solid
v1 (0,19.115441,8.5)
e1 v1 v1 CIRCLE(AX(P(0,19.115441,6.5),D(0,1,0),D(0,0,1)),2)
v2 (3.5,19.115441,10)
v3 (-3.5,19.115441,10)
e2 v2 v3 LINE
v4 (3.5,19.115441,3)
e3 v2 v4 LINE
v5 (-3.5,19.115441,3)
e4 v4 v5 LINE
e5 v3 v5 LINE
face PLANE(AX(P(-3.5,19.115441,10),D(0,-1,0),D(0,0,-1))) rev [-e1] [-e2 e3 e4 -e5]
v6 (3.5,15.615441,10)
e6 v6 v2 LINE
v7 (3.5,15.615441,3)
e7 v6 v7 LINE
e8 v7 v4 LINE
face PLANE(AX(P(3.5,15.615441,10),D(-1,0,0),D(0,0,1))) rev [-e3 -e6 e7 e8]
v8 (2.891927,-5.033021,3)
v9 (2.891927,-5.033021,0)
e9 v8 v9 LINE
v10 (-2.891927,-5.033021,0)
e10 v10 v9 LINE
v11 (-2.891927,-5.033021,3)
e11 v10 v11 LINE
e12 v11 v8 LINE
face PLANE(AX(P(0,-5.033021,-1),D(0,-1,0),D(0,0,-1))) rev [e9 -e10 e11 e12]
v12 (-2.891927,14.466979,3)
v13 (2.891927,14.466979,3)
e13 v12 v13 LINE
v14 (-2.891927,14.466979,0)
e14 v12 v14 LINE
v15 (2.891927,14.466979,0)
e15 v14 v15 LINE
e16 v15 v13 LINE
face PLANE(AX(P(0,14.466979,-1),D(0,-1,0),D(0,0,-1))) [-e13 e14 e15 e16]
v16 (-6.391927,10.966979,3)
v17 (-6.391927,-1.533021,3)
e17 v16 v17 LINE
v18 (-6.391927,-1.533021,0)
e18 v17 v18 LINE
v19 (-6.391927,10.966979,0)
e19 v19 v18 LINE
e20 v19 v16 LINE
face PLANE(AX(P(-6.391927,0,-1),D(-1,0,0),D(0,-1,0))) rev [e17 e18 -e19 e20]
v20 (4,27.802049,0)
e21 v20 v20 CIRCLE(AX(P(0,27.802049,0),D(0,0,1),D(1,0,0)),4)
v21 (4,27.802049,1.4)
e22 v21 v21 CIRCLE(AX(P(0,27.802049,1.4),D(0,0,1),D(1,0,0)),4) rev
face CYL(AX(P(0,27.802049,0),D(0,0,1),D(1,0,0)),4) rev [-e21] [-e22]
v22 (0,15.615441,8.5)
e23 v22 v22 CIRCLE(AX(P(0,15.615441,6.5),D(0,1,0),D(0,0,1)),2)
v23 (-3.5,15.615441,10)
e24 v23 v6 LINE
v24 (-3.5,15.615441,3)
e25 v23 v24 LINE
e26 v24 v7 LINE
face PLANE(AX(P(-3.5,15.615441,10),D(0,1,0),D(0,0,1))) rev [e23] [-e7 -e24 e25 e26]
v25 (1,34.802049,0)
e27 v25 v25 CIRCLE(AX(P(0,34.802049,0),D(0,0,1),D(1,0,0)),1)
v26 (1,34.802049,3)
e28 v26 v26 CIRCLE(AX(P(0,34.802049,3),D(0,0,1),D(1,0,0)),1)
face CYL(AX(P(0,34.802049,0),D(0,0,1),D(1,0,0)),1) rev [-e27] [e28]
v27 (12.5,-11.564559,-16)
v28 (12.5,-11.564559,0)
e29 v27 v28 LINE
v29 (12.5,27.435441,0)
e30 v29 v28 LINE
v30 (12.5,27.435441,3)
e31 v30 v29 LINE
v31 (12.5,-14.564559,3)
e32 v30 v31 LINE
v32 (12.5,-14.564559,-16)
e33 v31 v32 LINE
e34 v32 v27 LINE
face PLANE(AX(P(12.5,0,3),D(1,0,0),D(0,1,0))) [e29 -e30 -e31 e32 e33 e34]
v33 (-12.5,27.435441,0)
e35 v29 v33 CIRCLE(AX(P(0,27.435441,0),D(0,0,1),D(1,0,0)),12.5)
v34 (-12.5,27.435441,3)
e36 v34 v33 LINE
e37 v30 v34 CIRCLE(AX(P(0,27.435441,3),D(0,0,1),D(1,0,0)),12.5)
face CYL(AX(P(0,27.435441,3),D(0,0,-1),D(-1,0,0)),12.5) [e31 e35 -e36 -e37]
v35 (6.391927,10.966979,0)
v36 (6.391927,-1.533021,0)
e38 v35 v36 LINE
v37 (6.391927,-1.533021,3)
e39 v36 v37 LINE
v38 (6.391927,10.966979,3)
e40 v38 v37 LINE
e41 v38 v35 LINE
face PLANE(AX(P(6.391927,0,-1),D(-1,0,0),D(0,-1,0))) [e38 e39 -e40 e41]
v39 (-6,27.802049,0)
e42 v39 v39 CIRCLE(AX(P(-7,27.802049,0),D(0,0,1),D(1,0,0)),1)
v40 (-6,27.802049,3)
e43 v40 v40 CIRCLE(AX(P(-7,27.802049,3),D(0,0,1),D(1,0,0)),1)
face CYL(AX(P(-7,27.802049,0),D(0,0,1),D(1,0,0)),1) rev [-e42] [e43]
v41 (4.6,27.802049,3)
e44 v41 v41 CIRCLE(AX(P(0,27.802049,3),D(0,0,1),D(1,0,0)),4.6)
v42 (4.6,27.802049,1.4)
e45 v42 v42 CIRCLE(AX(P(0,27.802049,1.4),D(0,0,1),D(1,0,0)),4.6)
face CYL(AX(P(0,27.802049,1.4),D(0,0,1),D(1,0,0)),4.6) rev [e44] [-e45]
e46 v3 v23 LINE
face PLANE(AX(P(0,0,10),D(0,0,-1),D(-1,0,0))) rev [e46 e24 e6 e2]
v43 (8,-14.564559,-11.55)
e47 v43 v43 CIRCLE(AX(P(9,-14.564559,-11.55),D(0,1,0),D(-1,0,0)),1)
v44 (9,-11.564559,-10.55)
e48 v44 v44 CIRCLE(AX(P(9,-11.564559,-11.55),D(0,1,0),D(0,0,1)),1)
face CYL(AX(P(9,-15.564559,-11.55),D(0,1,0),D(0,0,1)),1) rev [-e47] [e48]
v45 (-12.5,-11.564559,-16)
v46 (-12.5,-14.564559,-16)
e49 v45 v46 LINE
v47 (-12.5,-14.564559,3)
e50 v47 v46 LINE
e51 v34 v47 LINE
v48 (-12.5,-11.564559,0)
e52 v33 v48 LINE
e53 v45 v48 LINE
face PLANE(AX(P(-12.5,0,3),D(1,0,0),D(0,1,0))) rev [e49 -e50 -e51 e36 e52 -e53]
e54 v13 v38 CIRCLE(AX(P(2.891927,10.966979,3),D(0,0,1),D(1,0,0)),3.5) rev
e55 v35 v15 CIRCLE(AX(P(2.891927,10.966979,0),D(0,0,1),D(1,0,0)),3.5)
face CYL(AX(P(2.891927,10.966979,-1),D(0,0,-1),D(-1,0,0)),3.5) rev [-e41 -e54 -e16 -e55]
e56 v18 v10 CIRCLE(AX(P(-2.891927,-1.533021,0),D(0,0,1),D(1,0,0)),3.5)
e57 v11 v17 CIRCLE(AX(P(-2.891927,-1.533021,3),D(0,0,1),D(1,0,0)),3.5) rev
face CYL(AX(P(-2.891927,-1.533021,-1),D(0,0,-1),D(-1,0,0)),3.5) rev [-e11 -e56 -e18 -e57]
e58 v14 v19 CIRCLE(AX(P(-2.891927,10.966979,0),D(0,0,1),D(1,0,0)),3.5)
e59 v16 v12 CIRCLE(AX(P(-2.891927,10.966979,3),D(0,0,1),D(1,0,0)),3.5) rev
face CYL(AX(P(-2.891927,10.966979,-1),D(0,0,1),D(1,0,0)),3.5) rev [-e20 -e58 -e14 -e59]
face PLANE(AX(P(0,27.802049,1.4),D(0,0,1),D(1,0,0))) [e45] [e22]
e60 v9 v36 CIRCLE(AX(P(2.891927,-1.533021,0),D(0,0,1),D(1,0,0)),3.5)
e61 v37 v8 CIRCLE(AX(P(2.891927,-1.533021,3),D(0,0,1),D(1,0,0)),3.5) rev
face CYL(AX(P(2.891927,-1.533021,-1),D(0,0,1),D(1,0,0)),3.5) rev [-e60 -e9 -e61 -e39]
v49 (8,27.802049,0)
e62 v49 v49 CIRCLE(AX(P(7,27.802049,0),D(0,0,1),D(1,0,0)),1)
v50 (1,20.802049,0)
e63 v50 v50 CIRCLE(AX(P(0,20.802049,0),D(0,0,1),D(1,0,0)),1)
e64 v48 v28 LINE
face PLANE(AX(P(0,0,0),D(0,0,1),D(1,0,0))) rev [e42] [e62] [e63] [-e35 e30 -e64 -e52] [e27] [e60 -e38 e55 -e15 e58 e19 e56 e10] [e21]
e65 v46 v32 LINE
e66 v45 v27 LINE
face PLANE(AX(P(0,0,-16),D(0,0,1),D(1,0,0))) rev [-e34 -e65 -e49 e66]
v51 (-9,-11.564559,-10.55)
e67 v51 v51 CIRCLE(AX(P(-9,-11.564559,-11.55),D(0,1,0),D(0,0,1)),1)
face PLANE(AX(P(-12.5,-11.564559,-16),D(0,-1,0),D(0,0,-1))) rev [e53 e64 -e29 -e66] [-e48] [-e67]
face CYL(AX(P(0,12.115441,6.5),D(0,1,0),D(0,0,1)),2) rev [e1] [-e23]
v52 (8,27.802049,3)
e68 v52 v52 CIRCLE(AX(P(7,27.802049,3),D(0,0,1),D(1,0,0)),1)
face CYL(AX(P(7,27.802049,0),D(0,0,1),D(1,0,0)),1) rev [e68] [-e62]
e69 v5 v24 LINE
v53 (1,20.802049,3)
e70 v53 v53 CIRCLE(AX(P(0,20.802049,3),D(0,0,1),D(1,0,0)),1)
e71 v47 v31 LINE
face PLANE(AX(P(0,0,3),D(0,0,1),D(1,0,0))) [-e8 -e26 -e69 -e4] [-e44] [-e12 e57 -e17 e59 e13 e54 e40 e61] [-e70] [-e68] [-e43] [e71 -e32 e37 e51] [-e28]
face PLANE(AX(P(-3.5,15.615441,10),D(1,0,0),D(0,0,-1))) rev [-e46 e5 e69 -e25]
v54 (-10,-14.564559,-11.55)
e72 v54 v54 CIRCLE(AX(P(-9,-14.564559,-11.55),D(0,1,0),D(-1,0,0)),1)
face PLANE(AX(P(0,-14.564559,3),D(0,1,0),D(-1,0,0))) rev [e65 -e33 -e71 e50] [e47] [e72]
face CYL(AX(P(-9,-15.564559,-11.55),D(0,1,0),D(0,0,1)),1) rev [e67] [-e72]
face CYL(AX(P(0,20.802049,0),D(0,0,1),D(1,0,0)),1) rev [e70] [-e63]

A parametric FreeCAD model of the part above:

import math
import FreeCAD as App
import Part
import Sketcher
from FreeCAD import Vector
Q = App.Units.Quantity


def edges_at(feature, points):
    """Names of the edges that pass closest to the given points."""
    edges = feature.Shape.Edges
    near = lambda p: min(range(len(edges)), key=lambda i: edges[i].distToShape(Part.Vertex(*p))[0])
    return sorted({f"Edge{near(p) + 1}" for p in points})

doc = App.newDocument("Part")
params = doc.addObject("Spreadsheet::Sheet", "Params")
for row, (alias, value) in enumerate([
    ("sketch1_radius", "12.5 mm"),
    ("sketch1_height", "42 mm"),
    ("pad1_length", "3 mm"),
    ("sketch2_diameter", "8 mm"),
    ("sketch2_diameter2", "2 mm"),
    ("pocket1_length", "3 mm"),
    ("sketch3_diameter", "9.2 mm"),
    ("pocket2_length", "1.6 mm"),
    ("sketch4_width", "25 mm"),
    ("sketch4_height", "3 mm"),
    ("pad2_length", "19 mm"),
    ("sketch5_diameter", "2 mm"),
    ("pocket3_length", "4 mm"),
    ("sketch6_height", "19.5 mm"),
    ("pocket4_length", "4 mm"),
    ("fillet_radius", "3.5 mm"),
    ("sketch7_width", "7 mm"),
    ("sketch7_height", "3.5 mm"),
    ("pad3_length", "7 mm"),
    ("sketch8_diameter", "4 mm"),
    ("pocket5_length", "7 mm"),
], start=1):
    params.set(f"A{row}", alias)
    params.set(f"B{row}", "=" + value)
    params.setAlias(f"B{row}", alias)

body = doc.addObject("PartDesign::Body", "Body")

# Sketch on XY plane
sketch1 = doc.addObject("Sketcher::SketchObject", "Sketch")
body.addObject(sketch1)
sketch1.AttachmentSupport = (doc.XY_Plane, [""])
sketch1.MapMode = "FlatFace"
sketch1.addGeometry(Part.LineSegment(Vector(-12, 27, 0), Vector(-12, -15, 0)), False)
sketch1.addGeometry(Part.LineSegment(Vector(-12, -15, 0), Vector(12, -15, 0)), False)
sketch1.addGeometry(Part.LineSegment(Vector(12, -15, 0), Vector(12, 27, 0)), False)
sketch1.addGeometry(Part.ArcOfCircle(Part.Circle(Vector(0, 27, 0), Vector(0, 0, 1), 12), math.radians(0), math.radians(180)), False)
sketch1.addConstraint(Sketcher.Constraint("Coincident", 0, 2, 1, 1))
sketch1.addConstraint(Sketcher.Constraint("Coincident", 1, 2, 2, 1))
sketch1.addConstraint(Sketcher.Constraint("Tangent", 2, 2, 3, 1))
sketch1.addConstraint(Sketcher.Constraint("Tangent", 3, 2, 0, 1))
sketch1.addConstraint(Sketcher.Constraint("Vertical", 0))
sketch1.addConstraint(Sketcher.Constraint("Horizontal", 1))
sketch1.addConstraint(Sketcher.Constraint("Vertical", 2))
sketch1.addConstraint(Sketcher.Constraint("PointOnObject", 3, 3, -2))
sketch1.addConstraint(Sketcher.Constraint("Radius", 3, Q("12.5 mm")))
sketch1.addConstraint(Sketcher.Constraint("DistanceY", 0, 2, 0, 1, Q("42 mm")))
sketch1.addConstraint(Sketcher.Constraint("DistanceY", -1, 1, 3, 3, Q("27.435441 mm")))
sketch1.setExpression("Constraints[8]", "Params.sketch1_radius")
sketch1.setExpression("Constraints[9]", "Params.sketch1_height")
pad1 = doc.addObject("PartDesign::Pad", "Pad")
body.addObject(pad1)
pad1.Profile = sketch1
pad1.setExpression("Length", "Params.pad1_length")

# Sketch on XY plane
sketch2 = doc.addObject("Sketcher::SketchObject", "Sketch001")
body.addObject(sketch2)
sketch2.AttachmentSupport = (doc.XY_Plane, [""])
sketch2.MapMode = "FlatFace"
sketch2.AttachmentOffset = App.Placement(Vector(0, 0, 3), App.Rotation())
sketch2.addGeometry(Part.Circle(Vector(0, 27.8, 0), Vector(0, 0, 1), 4), False)
sketch2.addGeometry(Part.Circle(Vector(0, 34.8, 0), Vector(0, 0, 1), 1), False)
sketch2.addGeometry(Part.Circle(Vector(7, 27.8, 0), Vector(0, 0, 1), 1), False)
sketch2.addGeometry(Part.Circle(Vector(0, 20.8, 0), Vector(0, 0, 1), 1), False)
sketch2.addGeometry(Part.Circle(Vector(-7, 27.8, 0), Vector(0, 0, 1), 1), False)
sketch2.addConstraint(Sketcher.Constraint("Equal", 1, 2))
sketch2.addConstraint(Sketcher.Constraint("Equal", 2, 3))
sketch2.addConstraint(Sketcher.Constraint("Equal", 3, 4))
sketch2.addConstraint(Sketcher.Constraint("Symmetric", 2, 3, 4, 3, -2))
sketch2.addConstraint(Sketcher.Constraint("PointOnObject", 0, 3, -2))
sketch2.addConstraint(Sketcher.Constraint("PointOnObject", 1, 3, -2))
sketch2.addConstraint(Sketcher.Constraint("PointOnObject", 3, 3, -2))
sketch2.addConstraint(Sketcher.Constraint("Horizontal", 0, 3, 2, 3))
sketch2.addConstraint(Sketcher.Constraint("Diameter", 0, Q("8 mm")))
sketch2.addConstraint(Sketcher.Constraint("Diameter", 1, Q("2 mm")))
sketch2.addConstraint(Sketcher.Constraint("DistanceX", -1, 1, 2, 3, Q("7 mm")))
sketch2.addConstraint(Sketcher.Constraint("DistanceY", 0, 3, 1, 3, Q("7 mm")))
sketch2.addConstraint(Sketcher.Constraint("DistanceY", 3, 3, 0, 3, Q("7 mm")))
sketch2.addConstraint(Sketcher.Constraint("DistanceY", -1, 1, 0, 3, Q("27.802049 mm")))
sketch2.setExpression("Constraints[8]", "Params.sketch2_diameter")
sketch2.setExpression("Constraints[9]", "Params.sketch2_diameter2")
pocket1 = doc.addObject("PartDesign::Pocket", "Pocket")
body.addObject(pocket1)
pocket1.Profile = sketch2
pocket1.setExpression("Length", "Params.pocket1_length")

# Sketch on XY plane
sketch3 = doc.addObject("Sketcher::SketchObject", "Sketch002")
body.addObject(sketch3)
sketch3.AttachmentSupport = (doc.XY_Plane, [""])
sketch3.MapMode = "FlatFace"
sketch3.AttachmentOffset = App.Placement(Vector(0, 0, 3), App.Rotation())
sketch3.addGeometry(Part.Circle(Vector(0, 27.8, 0), Vector(0, 0, 1), 4.6), False)
sketch3.addConstraint(Sketcher.Constraint("PointOnObject", 0, 3, -2))
sketch3.addConstraint(Sketcher.Constraint("Diameter", 0, Q("9.2 mm")))
sketch3.addConstraint(Sketcher.Constraint("DistanceY", -1, 1, 0, 3, Q("27.802049 mm")))
sketch3.setExpression("Constraints[1]", "Params.sketch3_diameter")
pocket2 = doc.addObject("PartDesign::Pocket", "Pocket001")
body.addObject(pocket2)
pocket2.Profile = sketch3
pocket2.setExpression("Length", "Params.pocket2_length")

# Sketch on XY plane
sketch4 = doc.addObject("Sketcher::SketchObject", "Sketch003")
body.addObject(sketch4)
sketch4.AttachmentSupport = (doc.XY_Plane, [""])
sketch4.MapMode = "FlatFace"
sketch4.AttachmentOffset = App.Placement(Vector(0, 0, 3), App.Rotation())
sketch4.addGeometry(Part.LineSegment(Vector(-12.5, -11.6, 0), Vector(-12.5, -14.6, 0)), False)
sketch4.addGeometry(Part.LineSegment(Vector(-12.5, -14.6, 0), Vector(12.5, -14.6, 0)), False)
sketch4.addGeometry(Part.LineSegment(Vector(12.5, -14.6, 0), Vector(12.5, -11.6, 0)), False)
sketch4.addGeometry(Part.LineSegment(Vector(12.5, -11.6, 0), Vector(-12.5, -11.6, 0)), False)
sketch4.addConstraint(Sketcher.Constraint("Coincident", 0, 2, 1, 1))
sketch4.addConstraint(Sketcher.Constraint("Coincident", 1, 2, 2, 1))
sketch4.addConstraint(Sketcher.Constraint("Coincident", 2, 2, 3, 1))
sketch4.addConstraint(Sketcher.Constraint("Coincident", 3, 2, 0, 1))
sketch4.addConstraint(Sketcher.Constraint("Vertical", 0))
sketch4.addConstraint(Sketcher.Constraint("Horizontal", 1))
sketch4.addConstraint(Sketcher.Constraint("Vertical", 2))
sketch4.addConstraint(Sketcher.Constraint("Horizontal", 3))
sketch4.addConstraint(Sketcher.Constraint("DistanceX", 1, 1, 1, 2, Q("25 mm")))
sketch4.addConstraint(Sketcher.Constraint("DistanceY", 0, 2, 0, 1, Q("3 mm")))
sketch4.addConstraint(Sketcher.Constraint("DistanceX", 0, 2, -1, 1, Q("12.5 mm")))
sketch4.addConstraint(Sketcher.Constraint("DistanceY", 0, 2, -1, 1, Q("14.564559 mm")))
sketch4.setExpression("Constraints[8]", "Params.sketch4_width")
sketch4.setExpression("Constraints[9]", "Params.sketch4_height")
pad2 = doc.addObject("PartDesign::Pad", "Pad001")
body.addObject(pad2)
pad2.Profile = sketch4
pad2.setExpression("Length", "Params.pad2_length")
pad2.Reversed = True

# Sketch on XZ plane
sketch5 = doc.addObject("Sketcher::SketchObject", "Sketch004")
body.addObject(sketch5)
sketch5.AttachmentSupport = (doc.XZ_Plane, [""])
sketch5.MapMode = "FlatFace"
sketch5.AttachmentOffset = App.Placement(Vector(0, 0, 11.564559), App.Rotation())
sketch5.addGeometry(Part.Circle(Vector(9, -11.6, 0), Vector(0, 0, 1), 1), False)
sketch5.addGeometry(Part.Circle(Vector(-9, -11.6, 0), Vector(0, 0, 1), 1), False)
sketch5.addConstraint(Sketcher.Constraint("Equal", 0, 1))
sketch5.addConstraint(Sketcher.Constraint("Symmetric", 0, 3, 1, 3, -2))
sketch5.addConstraint(Sketcher.Constraint("Diameter", 0, Q("2 mm")))
sketch5.addConstraint(Sketcher.Constraint("DistanceX", -1, 1, 0, 3, Q("9 mm")))
sketch5.addConstraint(Sketcher.Constraint("DistanceY", 0, 3, -1, 1, Q("11.55 mm")))
sketch5.setExpression("Constraints[2]", "Params.sketch5_diameter")
pocket3 = doc.addObject("PartDesign::Pocket", "Pocket002")
body.addObject(pocket3)
pocket3.Profile = sketch5
pocket3.setExpression("Length", "Params.pocket3_length")
pocket3.Reversed = True

# Sketch on XY plane
sketch6 = doc.addObject("Sketcher::SketchObject", "Sketch005")
body.addObject(sketch6)
sketch6.AttachmentSupport = (doc.XY_Plane, [""])
sketch6.MapMode = "FlatFace"
sketch6.AttachmentOffset = App.Placement(Vector(0, 0, 3), App.Rotation())
sketch6.addGeometry(Part.LineSegment(Vector(-6, 14, 0), Vector(-6, -5, 0)), False)
sketch6.addGeometry(Part.LineSegment(Vector(-6, -5, 0), Vector(6, -5, 0)), False)
sketch6.addGeometry(Part.LineSegment(Vector(6, -5, 0), Vector(6, 14, 0)), False)
sketch6.addGeometry(Part.LineSegment(Vector(6, 14, 0), Vector(-6, 14, 0)), False)
sketch6.addConstraint(Sketcher.Constraint("Coincident", 0, 2, 1, 1))
sketch6.addConstraint(Sketcher.Constraint("Coincident", 1, 2, 2, 1))
sketch6.addConstraint(Sketcher.Constraint("Coincident", 2, 2, 3, 1))
sketch6.addConstraint(Sketcher.Constraint("Coincident", 3, 2, 0, 1))
sketch6.addConstraint(Sketcher.Constraint("Vertical", 0))
sketch6.addConstraint(Sketcher.Constraint("Horizontal", 1))
sketch6.addConstraint(Sketcher.Constraint("Vertical", 2))
sketch6.addConstraint(Sketcher.Constraint("Horizontal", 3))
sketch6.addConstraint(Sketcher.Constraint("DistanceY", 0, 2, 0, 1, Q("19.5 mm")))
sketch6.addConstraint(Sketcher.Constraint("DistanceX", 1, 1, 1, 2, Q("12.783853 mm")))
sketch6.addConstraint(Sketcher.Constraint("DistanceY", 0, 2, -1, 1, Q("5.033021 mm")))
sketch6.addConstraint(Sketcher.Constraint("DistanceX", 0, 2, -1, 1, Q("6.391927 mm")))
sketch6.setExpression("Constraints[8]", "Params.sketch6_height")
pocket4 = doc.addObject("PartDesign::Pocket", "Pocket003")
body.addObject(pocket4)
pocket4.Profile = sketch6
pocket4.setExpression("Length", "Params.pocket4_length")
doc.recompute()

fillet = doc.addObject("PartDesign::Fillet", "Fillet")
body.addObject(fillet)
fillet.Base = (pocket4, edges_at(pocket4, [
    (6.392, 14.467, 1.5),
    (6.392, -5.033, 1.5),
    (-6.392, -5.033, 1.5),
    (-6.392, 14.467, 1.5),
]))
fillet.setExpression("Radius", "Params.fillet_radius")

# Sketch on XY plane
sketch7 = doc.addObject("Sketcher::SketchObject", "Sketch006")
body.addObject(sketch7)
sketch7.AttachmentSupport = (doc.XY_Plane, [""])
sketch7.MapMode = "FlatFace"
sketch7.AttachmentOffset = App.Placement(Vector(0, 0, 3), App.Rotation())
sketch7.addGeometry(Part.LineSegment(Vector(-3.5, 19.1, 0), Vector(-3.5, 15.6, 0)), False)
sketch7.addGeometry(Part.LineSegment(Vector(-3.5, 15.6, 0), Vector(3.5, 15.6, 0)), False)
sketch7.addGeometry(Part.LineSegment(Vector(3.5, 15.6, 0), Vector(3.5, 19.1, 0)), False)
sketch7.addGeometry(Part.LineSegment(Vector(3.5, 19.1, 0), Vector(-3.5, 19.1, 0)), False)
sketch7.addConstraint(Sketcher.Constraint("Coincident", 0, 2, 1, 1))
sketch7.addConstraint(Sketcher.Constraint("Coincident", 1, 2, 2, 1))
sketch7.addConstraint(Sketcher.Constraint("Coincident", 2, 2, 3, 1))
sketch7.addConstraint(Sketcher.Constraint("Coincident", 3, 2, 0, 1))
sketch7.addConstraint(Sketcher.Constraint("Vertical", 0))
sketch7.addConstraint(Sketcher.Constraint("Horizontal", 1))
sketch7.addConstraint(Sketcher.Constraint("Vertical", 2))
sketch7.addConstraint(Sketcher.Constraint("Horizontal", 3))
sketch7.addConstraint(Sketcher.Constraint("DistanceX", 1, 1, 1, 2, Q("7 mm")))
sketch7.addConstraint(Sketcher.Constraint("DistanceY", 0, 2, 0, 1, Q("3.5 mm")))
sketch7.addConstraint(Sketcher.Constraint("DistanceX", 0, 2, -1, 1, Q("3.5 mm")))
sketch7.addConstraint(Sketcher.Constraint("DistanceY", -1, 1, 0, 2, Q("15.615441 mm")))
sketch7.setExpression("Constraints[8]", "Params.sketch7_width")
sketch7.setExpression("Constraints[9]", "Params.sketch7_height")
pad3 = doc.addObject("PartDesign::Pad", "Pad002")
body.addObject(pad3)
pad3.Profile = sketch7
pad3.setExpression("Length", "Params.pad3_length")

# Sketch on XZ plane
sketch8 = doc.addObject("Sketcher::SketchObject", "Sketch007")
body.addObject(sketch8)
sketch8.AttachmentSupport = (doc.XZ_Plane, [""])
sketch8.MapMode = "FlatFace"
sketch8.AttachmentOffset = App.Placement(Vector(0, 0, -19.115441), App.Rotation())
sketch8.addGeometry(Part.Circle(Vector(0, 6.5, 0), Vector(0, 0, 1), 2), False)
sketch8.addConstraint(Sketcher.Constraint("PointOnObject", 0, 3, -2))
sketch8.addConstraint(Sketcher.Constraint("Diameter", 0, Q("4 mm")))
sketch8.addConstraint(Sketcher.Constraint("DistanceY", -1, 1, 0, 3, Q("6.5 mm")))
sketch8.setExpression("Constraints[1]", "Params.sketch8_diameter")
pocket5 = doc.addObject("PartDesign::Pocket", "Pocket004")
body.addObject(pocket5)
pocket5.Profile = sketch8
pocket5.setExpression("Length", "Params.pocket5_length")
pocket5.Reversed = True

doc.recompute()
